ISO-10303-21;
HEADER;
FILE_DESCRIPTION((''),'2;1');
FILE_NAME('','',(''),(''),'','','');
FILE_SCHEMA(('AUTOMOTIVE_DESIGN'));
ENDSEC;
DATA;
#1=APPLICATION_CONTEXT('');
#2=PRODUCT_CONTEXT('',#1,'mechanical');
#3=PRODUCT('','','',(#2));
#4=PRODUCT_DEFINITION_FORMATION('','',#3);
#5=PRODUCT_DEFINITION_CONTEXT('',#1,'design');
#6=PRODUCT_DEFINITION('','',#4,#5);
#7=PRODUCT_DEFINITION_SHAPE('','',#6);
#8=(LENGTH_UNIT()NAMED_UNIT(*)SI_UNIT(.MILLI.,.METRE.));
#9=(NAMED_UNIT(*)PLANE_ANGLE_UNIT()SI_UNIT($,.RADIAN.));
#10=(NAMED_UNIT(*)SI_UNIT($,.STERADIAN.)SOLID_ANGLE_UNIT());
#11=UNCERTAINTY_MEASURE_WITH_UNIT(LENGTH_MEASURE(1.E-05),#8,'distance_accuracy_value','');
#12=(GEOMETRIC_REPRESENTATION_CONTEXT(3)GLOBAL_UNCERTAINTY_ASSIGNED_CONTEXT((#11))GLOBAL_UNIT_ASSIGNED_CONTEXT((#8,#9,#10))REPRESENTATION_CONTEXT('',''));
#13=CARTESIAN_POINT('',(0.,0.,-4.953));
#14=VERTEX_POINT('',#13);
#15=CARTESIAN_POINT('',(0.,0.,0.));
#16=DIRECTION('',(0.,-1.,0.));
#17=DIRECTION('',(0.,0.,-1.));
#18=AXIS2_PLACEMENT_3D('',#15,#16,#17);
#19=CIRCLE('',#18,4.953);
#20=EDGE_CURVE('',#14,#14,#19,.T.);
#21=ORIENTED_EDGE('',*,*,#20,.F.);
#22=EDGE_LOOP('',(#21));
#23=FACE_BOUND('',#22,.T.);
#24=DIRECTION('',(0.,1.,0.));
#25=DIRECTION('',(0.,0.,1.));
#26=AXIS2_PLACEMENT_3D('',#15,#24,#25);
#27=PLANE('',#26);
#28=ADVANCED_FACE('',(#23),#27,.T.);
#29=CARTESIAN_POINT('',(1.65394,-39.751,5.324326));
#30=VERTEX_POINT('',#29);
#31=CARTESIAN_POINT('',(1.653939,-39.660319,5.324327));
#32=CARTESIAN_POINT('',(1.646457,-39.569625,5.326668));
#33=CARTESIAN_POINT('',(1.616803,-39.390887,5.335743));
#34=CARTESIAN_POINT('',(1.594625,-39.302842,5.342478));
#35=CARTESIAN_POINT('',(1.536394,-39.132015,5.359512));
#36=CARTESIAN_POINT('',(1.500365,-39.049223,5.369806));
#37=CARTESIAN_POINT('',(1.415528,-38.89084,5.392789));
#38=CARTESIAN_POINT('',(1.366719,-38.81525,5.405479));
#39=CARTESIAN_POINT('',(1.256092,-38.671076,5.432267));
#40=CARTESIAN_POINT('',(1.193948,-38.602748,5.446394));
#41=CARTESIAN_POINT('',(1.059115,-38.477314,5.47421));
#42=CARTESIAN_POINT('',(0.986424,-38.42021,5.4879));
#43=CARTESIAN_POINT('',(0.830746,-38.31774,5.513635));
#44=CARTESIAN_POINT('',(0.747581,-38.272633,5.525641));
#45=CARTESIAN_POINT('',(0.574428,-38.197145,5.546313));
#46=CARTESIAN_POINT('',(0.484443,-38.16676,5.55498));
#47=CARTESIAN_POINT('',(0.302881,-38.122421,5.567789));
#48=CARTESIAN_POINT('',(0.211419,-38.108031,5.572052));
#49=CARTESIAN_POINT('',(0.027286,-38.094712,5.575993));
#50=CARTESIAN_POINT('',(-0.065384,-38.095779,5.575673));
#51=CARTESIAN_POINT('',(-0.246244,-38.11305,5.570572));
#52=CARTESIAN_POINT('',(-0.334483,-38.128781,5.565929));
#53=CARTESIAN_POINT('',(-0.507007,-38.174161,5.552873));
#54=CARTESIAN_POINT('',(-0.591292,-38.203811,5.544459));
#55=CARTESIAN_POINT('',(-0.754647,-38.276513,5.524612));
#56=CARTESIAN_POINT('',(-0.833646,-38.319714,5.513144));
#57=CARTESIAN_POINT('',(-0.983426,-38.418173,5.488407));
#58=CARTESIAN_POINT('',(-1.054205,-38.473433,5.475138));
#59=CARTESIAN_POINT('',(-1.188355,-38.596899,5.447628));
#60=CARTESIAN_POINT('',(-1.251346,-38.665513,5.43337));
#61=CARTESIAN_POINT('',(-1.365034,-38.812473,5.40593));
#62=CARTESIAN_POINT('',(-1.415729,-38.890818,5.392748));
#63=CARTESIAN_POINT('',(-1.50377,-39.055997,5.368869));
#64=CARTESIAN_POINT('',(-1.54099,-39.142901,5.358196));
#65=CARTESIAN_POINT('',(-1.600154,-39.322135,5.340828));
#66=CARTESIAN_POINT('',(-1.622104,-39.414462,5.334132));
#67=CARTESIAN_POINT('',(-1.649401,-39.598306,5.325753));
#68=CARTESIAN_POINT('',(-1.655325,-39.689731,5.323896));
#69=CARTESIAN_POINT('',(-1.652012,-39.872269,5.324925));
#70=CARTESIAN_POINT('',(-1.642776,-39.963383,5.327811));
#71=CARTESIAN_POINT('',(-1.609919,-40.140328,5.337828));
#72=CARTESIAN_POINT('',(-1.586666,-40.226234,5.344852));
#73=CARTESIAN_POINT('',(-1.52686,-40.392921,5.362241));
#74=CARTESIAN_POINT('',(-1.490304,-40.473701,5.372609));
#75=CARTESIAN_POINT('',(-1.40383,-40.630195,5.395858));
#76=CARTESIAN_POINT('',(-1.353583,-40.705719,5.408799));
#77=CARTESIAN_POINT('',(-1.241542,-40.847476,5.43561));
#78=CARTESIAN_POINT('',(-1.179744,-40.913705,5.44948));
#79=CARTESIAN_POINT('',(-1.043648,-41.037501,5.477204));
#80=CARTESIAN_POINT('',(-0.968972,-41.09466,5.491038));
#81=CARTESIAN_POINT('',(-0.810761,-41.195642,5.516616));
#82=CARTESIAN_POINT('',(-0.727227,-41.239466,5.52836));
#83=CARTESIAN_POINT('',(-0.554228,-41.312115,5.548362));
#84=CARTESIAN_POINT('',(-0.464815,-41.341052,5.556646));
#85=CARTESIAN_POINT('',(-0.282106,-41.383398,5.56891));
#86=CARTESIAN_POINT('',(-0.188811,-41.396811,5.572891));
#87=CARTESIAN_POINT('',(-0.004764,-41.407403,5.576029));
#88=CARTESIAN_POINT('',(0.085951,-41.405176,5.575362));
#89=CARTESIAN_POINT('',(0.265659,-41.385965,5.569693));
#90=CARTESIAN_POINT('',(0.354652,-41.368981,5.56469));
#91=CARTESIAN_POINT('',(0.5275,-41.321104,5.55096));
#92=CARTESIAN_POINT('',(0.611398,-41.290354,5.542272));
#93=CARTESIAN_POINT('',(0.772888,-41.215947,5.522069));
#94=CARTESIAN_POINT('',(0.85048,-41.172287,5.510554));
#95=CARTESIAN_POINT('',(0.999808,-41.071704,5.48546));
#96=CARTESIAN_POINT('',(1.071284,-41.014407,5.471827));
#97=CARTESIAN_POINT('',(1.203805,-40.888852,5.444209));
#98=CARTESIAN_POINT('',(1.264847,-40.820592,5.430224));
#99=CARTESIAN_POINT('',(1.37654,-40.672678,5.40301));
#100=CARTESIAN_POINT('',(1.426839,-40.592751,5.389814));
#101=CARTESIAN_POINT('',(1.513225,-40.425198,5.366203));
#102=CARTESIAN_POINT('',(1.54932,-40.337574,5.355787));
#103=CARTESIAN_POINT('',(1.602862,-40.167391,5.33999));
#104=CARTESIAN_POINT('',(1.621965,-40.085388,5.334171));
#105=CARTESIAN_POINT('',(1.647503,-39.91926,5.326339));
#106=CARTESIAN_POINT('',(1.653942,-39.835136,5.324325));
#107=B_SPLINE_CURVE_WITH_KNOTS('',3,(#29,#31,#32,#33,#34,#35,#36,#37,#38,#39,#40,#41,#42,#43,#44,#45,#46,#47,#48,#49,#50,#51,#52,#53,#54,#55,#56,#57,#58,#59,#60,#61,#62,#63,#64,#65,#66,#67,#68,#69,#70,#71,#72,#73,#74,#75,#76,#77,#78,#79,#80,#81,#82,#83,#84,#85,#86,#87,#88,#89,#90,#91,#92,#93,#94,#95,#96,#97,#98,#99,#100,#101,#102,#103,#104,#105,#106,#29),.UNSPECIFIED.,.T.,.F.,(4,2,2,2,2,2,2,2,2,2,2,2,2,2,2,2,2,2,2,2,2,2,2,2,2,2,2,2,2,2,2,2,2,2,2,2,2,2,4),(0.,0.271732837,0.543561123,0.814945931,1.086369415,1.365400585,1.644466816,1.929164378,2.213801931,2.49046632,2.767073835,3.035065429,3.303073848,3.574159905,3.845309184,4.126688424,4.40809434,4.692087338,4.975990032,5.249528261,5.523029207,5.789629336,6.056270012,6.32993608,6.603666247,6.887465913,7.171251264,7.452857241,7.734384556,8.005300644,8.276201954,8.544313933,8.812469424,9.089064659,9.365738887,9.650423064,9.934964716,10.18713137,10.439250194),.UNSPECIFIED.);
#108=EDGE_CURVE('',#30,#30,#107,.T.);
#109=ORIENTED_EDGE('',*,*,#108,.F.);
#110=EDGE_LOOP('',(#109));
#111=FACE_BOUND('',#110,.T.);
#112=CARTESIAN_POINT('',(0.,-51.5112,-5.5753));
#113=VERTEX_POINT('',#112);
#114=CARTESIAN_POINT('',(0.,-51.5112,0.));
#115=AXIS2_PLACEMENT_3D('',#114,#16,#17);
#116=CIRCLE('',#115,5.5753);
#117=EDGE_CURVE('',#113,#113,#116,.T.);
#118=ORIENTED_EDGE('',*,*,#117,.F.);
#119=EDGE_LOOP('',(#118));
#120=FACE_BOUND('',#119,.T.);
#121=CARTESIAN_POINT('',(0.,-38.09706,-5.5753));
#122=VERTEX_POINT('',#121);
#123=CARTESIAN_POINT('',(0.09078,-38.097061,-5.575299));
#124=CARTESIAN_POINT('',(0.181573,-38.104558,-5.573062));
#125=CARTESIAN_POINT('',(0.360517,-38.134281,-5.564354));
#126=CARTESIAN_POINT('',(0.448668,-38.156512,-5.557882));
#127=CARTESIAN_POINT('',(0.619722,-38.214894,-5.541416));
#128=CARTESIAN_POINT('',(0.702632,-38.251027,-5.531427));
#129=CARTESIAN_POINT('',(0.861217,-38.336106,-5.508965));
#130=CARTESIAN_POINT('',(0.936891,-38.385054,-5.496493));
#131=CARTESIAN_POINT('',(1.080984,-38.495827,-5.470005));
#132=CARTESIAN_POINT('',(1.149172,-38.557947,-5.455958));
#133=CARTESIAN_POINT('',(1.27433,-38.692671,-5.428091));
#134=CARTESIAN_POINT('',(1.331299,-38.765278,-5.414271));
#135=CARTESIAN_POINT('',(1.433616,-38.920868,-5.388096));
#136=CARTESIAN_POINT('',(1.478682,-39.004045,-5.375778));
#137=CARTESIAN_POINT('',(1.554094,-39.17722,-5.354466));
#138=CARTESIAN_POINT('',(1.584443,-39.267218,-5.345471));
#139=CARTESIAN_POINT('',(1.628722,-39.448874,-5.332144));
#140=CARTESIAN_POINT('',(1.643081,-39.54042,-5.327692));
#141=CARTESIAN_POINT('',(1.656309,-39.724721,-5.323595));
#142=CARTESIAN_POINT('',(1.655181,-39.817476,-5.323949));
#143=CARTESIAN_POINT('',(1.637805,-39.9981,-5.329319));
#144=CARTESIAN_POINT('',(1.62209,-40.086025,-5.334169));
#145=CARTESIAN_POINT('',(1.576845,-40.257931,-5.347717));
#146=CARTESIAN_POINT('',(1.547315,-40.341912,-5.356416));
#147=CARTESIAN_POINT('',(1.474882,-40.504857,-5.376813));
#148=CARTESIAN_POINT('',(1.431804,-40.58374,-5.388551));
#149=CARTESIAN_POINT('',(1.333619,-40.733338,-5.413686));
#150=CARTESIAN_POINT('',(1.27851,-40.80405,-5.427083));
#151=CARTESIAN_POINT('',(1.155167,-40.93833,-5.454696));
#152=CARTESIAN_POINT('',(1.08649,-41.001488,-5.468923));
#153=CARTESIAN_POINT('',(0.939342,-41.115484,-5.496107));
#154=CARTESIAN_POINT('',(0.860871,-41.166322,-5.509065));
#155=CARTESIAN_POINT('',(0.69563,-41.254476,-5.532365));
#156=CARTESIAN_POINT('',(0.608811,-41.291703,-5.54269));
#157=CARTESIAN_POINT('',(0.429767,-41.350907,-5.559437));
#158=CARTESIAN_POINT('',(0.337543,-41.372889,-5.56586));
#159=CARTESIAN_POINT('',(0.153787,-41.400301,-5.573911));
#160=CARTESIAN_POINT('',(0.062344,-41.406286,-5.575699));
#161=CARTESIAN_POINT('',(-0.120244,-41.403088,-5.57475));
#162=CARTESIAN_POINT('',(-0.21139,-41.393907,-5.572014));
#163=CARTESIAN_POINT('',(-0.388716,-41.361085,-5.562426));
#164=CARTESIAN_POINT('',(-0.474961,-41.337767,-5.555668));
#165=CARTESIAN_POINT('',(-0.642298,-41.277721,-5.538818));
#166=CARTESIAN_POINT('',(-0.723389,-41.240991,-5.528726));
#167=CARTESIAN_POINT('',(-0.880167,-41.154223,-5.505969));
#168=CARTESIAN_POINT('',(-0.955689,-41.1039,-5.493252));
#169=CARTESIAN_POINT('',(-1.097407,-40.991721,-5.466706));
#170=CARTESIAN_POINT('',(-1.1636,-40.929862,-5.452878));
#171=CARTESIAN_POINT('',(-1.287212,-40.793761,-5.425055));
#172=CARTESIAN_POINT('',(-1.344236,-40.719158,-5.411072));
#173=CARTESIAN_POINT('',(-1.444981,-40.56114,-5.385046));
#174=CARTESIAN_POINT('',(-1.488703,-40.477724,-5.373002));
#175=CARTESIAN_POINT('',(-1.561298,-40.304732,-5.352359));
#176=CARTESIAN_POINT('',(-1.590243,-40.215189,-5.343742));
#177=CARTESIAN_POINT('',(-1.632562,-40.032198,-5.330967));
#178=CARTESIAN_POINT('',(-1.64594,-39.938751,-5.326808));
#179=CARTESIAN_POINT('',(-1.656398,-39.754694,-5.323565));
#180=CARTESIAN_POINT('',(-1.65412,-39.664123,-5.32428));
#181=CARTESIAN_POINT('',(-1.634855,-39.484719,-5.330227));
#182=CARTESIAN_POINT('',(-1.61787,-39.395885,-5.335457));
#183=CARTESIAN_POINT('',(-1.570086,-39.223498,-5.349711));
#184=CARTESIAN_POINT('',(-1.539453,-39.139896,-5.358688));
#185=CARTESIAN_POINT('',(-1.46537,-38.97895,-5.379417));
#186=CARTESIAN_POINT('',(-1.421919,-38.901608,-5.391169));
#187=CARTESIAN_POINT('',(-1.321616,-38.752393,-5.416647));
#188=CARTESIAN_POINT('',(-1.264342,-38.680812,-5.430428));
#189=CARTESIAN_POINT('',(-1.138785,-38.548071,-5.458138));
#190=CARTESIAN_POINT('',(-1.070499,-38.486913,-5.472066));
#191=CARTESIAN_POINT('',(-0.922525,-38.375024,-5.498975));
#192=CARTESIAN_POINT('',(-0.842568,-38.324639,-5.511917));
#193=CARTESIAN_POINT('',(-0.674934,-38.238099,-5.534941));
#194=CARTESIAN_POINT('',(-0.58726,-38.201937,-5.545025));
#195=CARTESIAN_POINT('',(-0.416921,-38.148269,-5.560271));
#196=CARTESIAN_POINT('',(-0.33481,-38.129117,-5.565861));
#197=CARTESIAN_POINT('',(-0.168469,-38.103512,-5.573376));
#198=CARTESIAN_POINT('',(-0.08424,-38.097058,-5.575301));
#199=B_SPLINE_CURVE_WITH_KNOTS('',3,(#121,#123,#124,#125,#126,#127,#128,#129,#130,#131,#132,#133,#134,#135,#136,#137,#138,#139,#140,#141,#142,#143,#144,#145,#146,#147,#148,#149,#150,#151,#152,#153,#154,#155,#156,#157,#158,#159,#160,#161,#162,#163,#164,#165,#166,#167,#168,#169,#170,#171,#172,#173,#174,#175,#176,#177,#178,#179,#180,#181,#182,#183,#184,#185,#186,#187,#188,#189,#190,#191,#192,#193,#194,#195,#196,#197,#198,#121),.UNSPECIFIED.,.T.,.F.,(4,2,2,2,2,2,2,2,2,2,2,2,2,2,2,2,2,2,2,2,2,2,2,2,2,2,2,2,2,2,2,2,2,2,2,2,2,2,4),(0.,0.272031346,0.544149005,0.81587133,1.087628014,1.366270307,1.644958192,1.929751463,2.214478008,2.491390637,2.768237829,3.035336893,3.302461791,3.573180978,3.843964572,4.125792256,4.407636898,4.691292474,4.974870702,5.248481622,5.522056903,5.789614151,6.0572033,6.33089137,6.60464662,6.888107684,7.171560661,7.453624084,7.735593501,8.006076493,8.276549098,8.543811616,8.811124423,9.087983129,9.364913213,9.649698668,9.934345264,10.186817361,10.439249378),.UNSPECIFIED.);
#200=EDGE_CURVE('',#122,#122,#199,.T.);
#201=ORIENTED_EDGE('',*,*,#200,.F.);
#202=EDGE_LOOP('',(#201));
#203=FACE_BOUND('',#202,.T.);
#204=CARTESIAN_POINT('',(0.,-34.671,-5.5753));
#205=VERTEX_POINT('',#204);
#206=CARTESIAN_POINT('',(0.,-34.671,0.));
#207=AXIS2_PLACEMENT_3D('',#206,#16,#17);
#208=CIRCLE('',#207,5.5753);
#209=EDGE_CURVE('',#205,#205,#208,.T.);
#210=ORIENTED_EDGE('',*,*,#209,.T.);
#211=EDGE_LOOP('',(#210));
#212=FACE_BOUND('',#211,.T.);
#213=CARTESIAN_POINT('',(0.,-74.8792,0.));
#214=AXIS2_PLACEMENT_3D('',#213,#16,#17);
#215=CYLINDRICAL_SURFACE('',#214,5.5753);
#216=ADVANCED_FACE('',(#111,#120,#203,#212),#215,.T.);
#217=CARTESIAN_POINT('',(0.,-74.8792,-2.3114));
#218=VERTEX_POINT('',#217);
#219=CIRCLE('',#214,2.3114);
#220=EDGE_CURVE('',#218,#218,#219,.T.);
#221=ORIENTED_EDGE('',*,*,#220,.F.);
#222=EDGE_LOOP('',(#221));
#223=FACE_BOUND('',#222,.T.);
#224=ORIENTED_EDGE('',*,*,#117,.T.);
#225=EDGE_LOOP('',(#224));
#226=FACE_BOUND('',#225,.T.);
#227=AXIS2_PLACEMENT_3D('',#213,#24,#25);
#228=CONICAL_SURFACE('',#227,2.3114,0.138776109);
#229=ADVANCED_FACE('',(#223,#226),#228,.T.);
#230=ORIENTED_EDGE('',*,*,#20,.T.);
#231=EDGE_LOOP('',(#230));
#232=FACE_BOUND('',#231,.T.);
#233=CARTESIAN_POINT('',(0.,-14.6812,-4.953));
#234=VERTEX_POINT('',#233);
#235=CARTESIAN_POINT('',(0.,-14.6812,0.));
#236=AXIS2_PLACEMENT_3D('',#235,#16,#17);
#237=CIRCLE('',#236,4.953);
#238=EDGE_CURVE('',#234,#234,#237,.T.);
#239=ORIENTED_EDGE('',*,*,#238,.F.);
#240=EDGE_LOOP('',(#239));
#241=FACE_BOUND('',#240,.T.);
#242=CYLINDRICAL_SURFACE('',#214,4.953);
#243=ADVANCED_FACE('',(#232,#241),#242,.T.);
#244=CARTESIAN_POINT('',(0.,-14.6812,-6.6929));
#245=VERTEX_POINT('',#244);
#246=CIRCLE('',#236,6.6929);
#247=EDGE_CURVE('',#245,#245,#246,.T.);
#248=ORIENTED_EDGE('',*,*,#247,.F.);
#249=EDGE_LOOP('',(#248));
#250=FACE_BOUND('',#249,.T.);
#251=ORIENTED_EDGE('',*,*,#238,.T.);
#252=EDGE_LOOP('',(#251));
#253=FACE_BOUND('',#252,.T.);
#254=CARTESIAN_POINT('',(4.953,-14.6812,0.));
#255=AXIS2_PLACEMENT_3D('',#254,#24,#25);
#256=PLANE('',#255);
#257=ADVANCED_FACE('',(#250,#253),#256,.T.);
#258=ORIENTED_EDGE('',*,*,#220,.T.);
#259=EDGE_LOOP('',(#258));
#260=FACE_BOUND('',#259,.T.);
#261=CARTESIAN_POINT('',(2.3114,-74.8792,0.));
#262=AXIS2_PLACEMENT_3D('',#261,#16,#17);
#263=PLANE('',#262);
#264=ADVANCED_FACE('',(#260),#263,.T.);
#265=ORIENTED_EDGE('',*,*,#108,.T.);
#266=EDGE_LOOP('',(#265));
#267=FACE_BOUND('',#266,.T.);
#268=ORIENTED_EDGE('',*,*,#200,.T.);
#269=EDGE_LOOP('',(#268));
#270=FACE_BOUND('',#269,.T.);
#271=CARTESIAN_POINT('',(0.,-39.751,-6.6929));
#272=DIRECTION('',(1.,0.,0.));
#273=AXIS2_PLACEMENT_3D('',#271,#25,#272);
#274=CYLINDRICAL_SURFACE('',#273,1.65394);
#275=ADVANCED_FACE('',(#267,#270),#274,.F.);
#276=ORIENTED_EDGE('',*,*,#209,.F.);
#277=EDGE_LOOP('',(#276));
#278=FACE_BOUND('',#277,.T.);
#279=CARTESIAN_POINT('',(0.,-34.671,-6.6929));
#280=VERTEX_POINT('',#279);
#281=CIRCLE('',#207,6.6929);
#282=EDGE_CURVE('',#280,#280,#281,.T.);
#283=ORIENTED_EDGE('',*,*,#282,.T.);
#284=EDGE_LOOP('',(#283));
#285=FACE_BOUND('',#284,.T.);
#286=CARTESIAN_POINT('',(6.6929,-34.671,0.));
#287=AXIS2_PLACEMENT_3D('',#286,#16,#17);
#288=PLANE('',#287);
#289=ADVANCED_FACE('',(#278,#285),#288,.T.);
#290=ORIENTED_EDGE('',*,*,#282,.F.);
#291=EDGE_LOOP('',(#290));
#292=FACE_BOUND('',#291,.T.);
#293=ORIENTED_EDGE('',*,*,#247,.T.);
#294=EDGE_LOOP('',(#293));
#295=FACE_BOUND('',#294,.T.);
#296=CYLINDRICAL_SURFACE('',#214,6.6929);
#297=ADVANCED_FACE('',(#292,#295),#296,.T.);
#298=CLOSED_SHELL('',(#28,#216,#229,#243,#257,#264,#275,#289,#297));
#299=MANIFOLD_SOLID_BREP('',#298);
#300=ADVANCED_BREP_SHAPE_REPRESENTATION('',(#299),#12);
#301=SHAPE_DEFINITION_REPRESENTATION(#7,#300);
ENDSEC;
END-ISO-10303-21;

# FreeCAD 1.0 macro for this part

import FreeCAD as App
import Part
import Sketcher

V = App.Vector
Q = App.Units.Quantity


def add_polygon(sketch, points):
    """Adds a closed chain of lines whose ends are joined by coincident constraints."""
    first, n = sketch.GeometryCount, len(points)
    for a, b in zip(points, points[1:] + points[:1]):
        sketch.addGeometry(Part.LineSegment(App.Vector(*a, 0), App.Vector(*b, 0)), False)
    for i in range(n):
        sketch.addConstraint(Sketcher.Constraint("Coincident", first + i, 2, first + (i + 1) % n, 1))

doc = App.newDocument("Part")
params = doc.addObject("Spreadsheet::Sheet", "Params")
for row, (alias, value) in enumerate([
    ("sketch1_width", "0.195 in"),
    ("sketch1_width2", "0.091 in"),
    ("sketch1_width3", "0.044 in"),
    ("sketch1_height", "2.948 in"),
    ("sketch1_height2", "0.663 in"),
    ("revolution_angle", "360 deg"),
], start=1):
    params.set(f"A{row}", alias)
    params.set(f"B{row}", "=" + value)
    params.setAlias(f"B{row}", alias)

body = doc.addObject("PartDesign::Body", "Body")

# Sketch on XY plane
sketch1 = doc.addObject("Sketcher::SketchObject", "Sketch")
body.addObject(sketch1)
sketch1.AttachmentSupport = (doc.XY_Plane, [""])
sketch1.MapMode = "FlatFace"
add_polygon(sketch1, [(5, 0), (0, 0), (0, -74.9), (2.3, -74.9), (5.6, -51.5), (5.6, -34.7), (6.7, -34.7), (6.7, -14.7), (5, -14.7)])  # lines 0-8
sketch1.addConstraint([
    Sketcher.Constraint("Horizontal", 0),
    Sketcher.Constraint("Vertical", 1),
    Sketcher.Constraint("Horizontal", 2),
    Sketcher.Constraint("Vertical", 4),
    Sketcher.Constraint("Horizontal", 5),
    Sketcher.Constraint("Vertical", 6),
    Sketcher.Constraint("Horizontal", 7),
    Sketcher.Constraint("Vertical", 8),
    Sketcher.Constraint("Coincident", 0, 2, -1, 1),
    Sketcher.Constraint("DistanceX", 0, 2, 0, 1, Q("0.195 in")),
    Sketcher.Constraint("DistanceX", 2, 1, 2, 2, Q("0.091 in")),
    Sketcher.Constraint("DistanceX", 5, 1, 5, 2, Q("0.044 in")),
    Sketcher.Constraint("DistanceY", 1, 2, 1, 1, Q("2.948 in")),
    Sketcher.Constraint("DistanceY", 4, 1, 4, 2, Q("0.663 in")),
    Sketcher.Constraint("DistanceY", 6, 1, 6, 2, Q("0.787 in")),
    Sketcher.Constraint("DistanceY", 8, 1, 8, 2, Q("0.578 in")),
    Sketcher.Constraint("DistanceX", 7, 2, 7, 1, Q("0.0685 in")),
])
sketch1.setExpression("Constraints[18]", "Params.sketch1_width")
sketch1.setExpression("Constraints[19]", "Params.sketch1_width2")
sketch1.setExpression("Constraints[20]", "Params.sketch1_width3")
sketch1.setExpression("Constraints[21]", "Params.sketch1_height")
sketch1.setExpression("Constraints[22]", "Params.sketch1_height2")
revolution = doc.addObject("PartDesign::Revolution", "Revolution")
body.addObject(revolution)
revolution.Profile = sketch1
revolution.ReferenceAxis = (sketch1, ["V_Axis"])
revolution.setExpression("Angle", "Params.revolution_angle")

# Sketch on XY plane
sketch2 = doc.addObject("Sketcher::SketchObject", "Sketch001")
body.addObject(sketch2)
sketch2.AttachmentSupport = (doc.XY_Plane, [""])
sketch2.MapMode = "FlatFace"
sketch2.addGeometry(Part.Circle(V(0, -39.8, 0), V(0, 0, 1), 1.7), False)
sketch2.addConstraint([
    Sketcher.Constraint("PointOnObject", 0, 3, -2),
    Sketcher.Constraint("Diameter", 0, 3.307881),
    Sketcher.Constraint("DistanceY", 0, 3, -1, 1, Q("1.565 in")),
])
pocket1 = doc.addObject("PartDesign::Pocket", "Pocket")
body.addObject(pocket1)
pocket1.Profile = sketch2
pocket1.Type = "ThroughAll"
pocket1.Midplane = True

doc.recompute()
